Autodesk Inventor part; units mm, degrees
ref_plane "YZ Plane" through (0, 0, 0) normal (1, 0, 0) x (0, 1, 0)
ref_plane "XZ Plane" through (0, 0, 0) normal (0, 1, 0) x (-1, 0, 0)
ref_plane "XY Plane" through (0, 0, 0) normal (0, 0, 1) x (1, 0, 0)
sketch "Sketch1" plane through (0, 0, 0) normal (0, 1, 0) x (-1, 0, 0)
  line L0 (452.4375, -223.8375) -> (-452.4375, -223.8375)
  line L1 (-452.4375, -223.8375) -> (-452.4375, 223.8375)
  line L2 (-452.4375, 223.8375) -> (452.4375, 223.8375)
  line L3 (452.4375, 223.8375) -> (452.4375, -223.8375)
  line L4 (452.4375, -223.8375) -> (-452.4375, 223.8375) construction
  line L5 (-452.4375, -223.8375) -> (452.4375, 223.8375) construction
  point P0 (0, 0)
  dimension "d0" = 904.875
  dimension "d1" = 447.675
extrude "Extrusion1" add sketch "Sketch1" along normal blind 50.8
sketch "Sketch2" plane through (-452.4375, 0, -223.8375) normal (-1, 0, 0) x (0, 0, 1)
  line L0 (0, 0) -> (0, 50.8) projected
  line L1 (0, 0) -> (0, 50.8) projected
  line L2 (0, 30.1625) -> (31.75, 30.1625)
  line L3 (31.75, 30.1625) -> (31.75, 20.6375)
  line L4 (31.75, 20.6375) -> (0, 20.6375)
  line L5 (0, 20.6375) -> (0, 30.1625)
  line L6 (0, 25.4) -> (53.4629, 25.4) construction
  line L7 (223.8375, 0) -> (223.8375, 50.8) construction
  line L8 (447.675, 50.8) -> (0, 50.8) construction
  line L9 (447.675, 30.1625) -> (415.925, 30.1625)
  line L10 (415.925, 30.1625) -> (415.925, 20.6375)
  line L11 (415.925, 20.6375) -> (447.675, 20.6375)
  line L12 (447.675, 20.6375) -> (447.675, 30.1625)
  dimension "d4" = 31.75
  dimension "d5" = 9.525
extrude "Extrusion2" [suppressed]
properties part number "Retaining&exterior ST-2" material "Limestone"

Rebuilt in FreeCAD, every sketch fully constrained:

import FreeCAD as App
import Part
import Sketcher

V = App.Vector
Q = App.Units.Quantity


def add_polygon(sketch, points):
    """Adds a closed chain of lines whose ends are joined by coincident constraints."""
    first, n = sketch.GeometryCount, len(points)
    for a, b in zip(points, points[1:] + points[:1]):
        sketch.addGeometry(Part.LineSegment(App.Vector(*a, 0), App.Vector(*b, 0)), False)
    for i in range(n):
        sketch.addConstraint(Sketcher.Constraint("Coincident", first + i, 2, first + (i + 1) % n, 1))

doc = App.newDocument("Part")
params = doc.addObject("Spreadsheet::Sheet", "Params")
for row, (alias, value) in enumerate([
    ("sketch1_width", "35.625 in"),
    ("sketch1_height", "17.625 in"),
    ("pad1_length", "2 in"),
], start=1):
    params.set(f"A{row}", alias)
    params.set(f"B{row}", "=" + value)
    params.setAlias(f"B{row}", alias)

body = doc.addObject("PartDesign::Body", "Body")

sketch1 = body.newObject("Sketcher::SketchObject", "Sketch")
sketch1.AttachmentSupport = (doc.getObject("XZ_Plane"), [""])
sketch1.MapMode = "FlatFace"
add_polygon(sketch1, [(452, -224), (-452, -224), (-452, 224), (452, 224)])
sketch1.addConstraint([
    Sketcher.Constraint("Horizontal", 0),
    Sketcher.Constraint("Vertical", 1),
    Sketcher.Constraint("Horizontal", 2),
    Sketcher.Constraint("Vertical", 3),
    Sketcher.Constraint("Symmetric", 0, 2, 2, 2, -1, 1),
    Sketcher.Constraint("DistanceX", 0, 2, 0, 1, Q("35.625 in")),
    Sketcher.Constraint("DistanceY", 1, 1, 1, 2, Q("17.625 in")),
])
sketch1.setExpression("Constraints[9]", "Params.sketch1_width")
sketch1.setExpression("Constraints[10]", "Params.sketch1_height")
pad1 = body.newObject("PartDesign::Pad", "Pad")
pad1.Profile = sketch1
pad1.setExpression("Length", "Params.pad1_length")
pad1.Reversed = True

doc.recompute()
